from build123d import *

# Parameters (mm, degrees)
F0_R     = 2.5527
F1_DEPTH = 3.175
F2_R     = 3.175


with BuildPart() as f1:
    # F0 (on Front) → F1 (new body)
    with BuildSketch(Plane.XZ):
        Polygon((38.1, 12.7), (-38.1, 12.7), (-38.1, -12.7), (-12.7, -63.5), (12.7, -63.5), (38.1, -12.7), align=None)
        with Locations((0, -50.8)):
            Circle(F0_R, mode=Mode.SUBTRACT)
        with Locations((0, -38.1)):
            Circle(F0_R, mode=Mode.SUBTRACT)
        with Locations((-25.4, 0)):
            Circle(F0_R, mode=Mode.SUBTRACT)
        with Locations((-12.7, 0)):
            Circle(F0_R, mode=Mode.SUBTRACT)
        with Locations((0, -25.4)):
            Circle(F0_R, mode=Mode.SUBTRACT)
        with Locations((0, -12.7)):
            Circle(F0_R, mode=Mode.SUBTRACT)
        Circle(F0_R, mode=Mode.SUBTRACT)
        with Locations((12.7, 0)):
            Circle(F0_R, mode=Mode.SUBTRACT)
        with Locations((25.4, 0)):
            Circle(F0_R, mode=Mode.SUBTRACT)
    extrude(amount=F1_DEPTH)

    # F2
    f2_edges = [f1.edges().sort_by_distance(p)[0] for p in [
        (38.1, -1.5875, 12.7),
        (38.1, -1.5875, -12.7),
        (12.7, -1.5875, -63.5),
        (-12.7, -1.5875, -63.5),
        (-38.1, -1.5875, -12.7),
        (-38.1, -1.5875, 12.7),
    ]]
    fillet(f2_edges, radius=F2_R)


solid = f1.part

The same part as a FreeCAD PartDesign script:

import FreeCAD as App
import Part
import Sketcher
Q = App.Units.Quantity


def edges_at(feature, points):
    """Names of the edges that pass closest to the given points."""
    edges = feature.Shape.Edges
    near = lambda p: min(range(len(edges)), key=lambda i: edges[i].distToShape(Part.Vertex(*p))[0])
    return sorted({f"Edge{near(p) + 1}" for p in points})

doc = App.newDocument("Part")
params = doc.addObject("Spreadsheet::Sheet", "Params")
for row, (alias, value) in enumerate([
    ("sketch1_width", "3 in"),
    ("sketch1_width2", "1 in"),
    ("sketch1_diameter", "0.201 in"),
    ("pad1_length", "0.125 in"),
    ("fillet_radius", "0.125 in"),
], start=1):
    params.set(f"A{row}", alias)
    params.set(f"B{row}", "=" + value)
    params.setAlias(f"B{row}", alias)

body = doc.addObject("PartDesign::Body", "Body")

# Sketch on XZ plane
sketch1 = body.newObject("Sketcher::SketchObject", "Sketch")
sketch1.AttachmentSupport = (doc.getObject("XZ_Plane"), [""])
sketch1.MapMode = "FlatFace"
sketch1.addGeometry([
    Part.LineSegment(App.Vector(38.1, 12.7, 0), App.Vector(-38.1, 12.7, 0)),  # 0
    Part.LineSegment(App.Vector(-38.1, 12.7, 0), App.Vector(-38.1, -12.7, 0)),  # 1
    Part.LineSegment(App.Vector(-38.1, -12.7, 0), App.Vector(-12.7, -63.5, 0)),  # 2
    Part.LineSegment(App.Vector(-12.7, -63.5, 0), App.Vector(12.7, -63.5, 0)),  # 3
    Part.LineSegment(App.Vector(12.7, -63.5, 0), App.Vector(38.1, -12.7, 0)),  # 4
    Part.LineSegment(App.Vector(38.1, -12.7, 0), App.Vector(38.1, 12.7, 0)),  # 5
    Part.Circle(App.Vector(0, -50.8, 0), App.Vector(0, 0, 1), 2.6),  # 6
    Part.Circle(App.Vector(0, -38.1, 0), App.Vector(0, 0, 1), 2.6),  # 7
    Part.Circle(App.Vector(-25.4, 0, 0), App.Vector(0, 0, 1), 2.6),  # 8
    Part.Circle(App.Vector(-12.7, 0, 0), App.Vector(0, 0, 1), 2.6),  # 9
    Part.Circle(App.Vector(0, -25.4, 0), App.Vector(0, 0, 1), 2.6),  # 10
    Part.Circle(App.Vector(0, -12.7, 0), App.Vector(0, 0, 1), 2.6),  # 11
    Part.Circle(App.Vector(0, 0, 0), App.Vector(0, 0, 1), 2.6),  # 12
    Part.Circle(App.Vector(12.7, 0, 0), App.Vector(0, 0, 1), 2.6),  # 13
    Part.Circle(App.Vector(25.4, 0, 0), App.Vector(0, 0, 1), 2.6),  # 14
], False)
sketch1.addConstraint([
    Sketcher.Constraint("Coincident", 0, 2, 1, 1),
    Sketcher.Constraint("Coincident", 1, 2, 2, 1),
    Sketcher.Constraint("Coincident", 2, 2, 3, 1),
    Sketcher.Constraint("Coincident", 3, 2, 4, 1),
    Sketcher.Constraint("Coincident", 4, 2, 5, 1),
    Sketcher.Constraint("Coincident", 5, 2, 0, 1),
    Sketcher.Constraint("Horizontal", 0),
    Sketcher.Constraint("Vertical", 1),
    Sketcher.Constraint("Horizontal", 3),
    Sketcher.Constraint("Vertical", 5),
    Sketcher.Constraint("Coincident", 12, 3, -1, 1),
    Sketcher.Constraint("Equal", 6, 7),
    Sketcher.Constraint("Equal", 7, 8),
    Sketcher.Constraint("Equal", 8, 9),
    Sketcher.Constraint("Equal", 9, 10),
    Sketcher.Constraint("Equal", 10, 11),
    Sketcher.Constraint("Equal", 11, 12),
    Sketcher.Constraint("Equal", 12, 13),
    Sketcher.Constraint("Equal", 13, 14),
    Sketcher.Constraint("Symmetric", 9, 3, 13, 3, -1, 1),
    Sketcher.Constraint("Symmetric", 8, 3, 14, 3, -1, 1),
    Sketcher.Constraint("Symmetric", 0, 2, 4, 2, -1, 1),
    Sketcher.Constraint("PointOnObject", 6, 3, -2),
    Sketcher.Constraint("PointOnObject", 7, 3, -2),
    Sketcher.Constraint("PointOnObject", 8, 3, -1),
    Sketcher.Constraint("PointOnObject", 9, 3, -1),
    Sketcher.Constraint("PointOnObject", 10, 3, -2),
    Sketcher.Constraint("PointOnObject", 11, 3, -2),
    Sketcher.Constraint("Horizontal", 11, 3, 1, 2),
    Sketcher.Constraint("Horizontal", 1, 2, 4, 2),
    Sketcher.Constraint("Vertical", 9, 3, 2, 2),
    Sketcher.Constraint("Vertical", 13, 3, 3, 2),
    Sketcher.Constraint("Equal", 3, 1),
    Sketcher.Constraint("DistanceX", 0, 2, 0, 1, Q("3 in")),
    Sketcher.Constraint("DistanceX", 3, 1, 3, 2, Q("1 in")),
    Sketcher.Constraint("Diameter", 6, Q("0.201 in")),
    Sketcher.Constraint("DistanceY", 6, 3, -1, 1, Q("2 in")),
    Sketcher.Constraint("DistanceX", 8, 3, -1, 1, Q("1 in")),
    Sketcher.Constraint("DistanceY", 10, 3, -1, 1, Q("1 in")),
    Sketcher.Constraint("DistanceY", 7, 3, 11, 3, Q("1 in")),
    Sketcher.Constraint("DistanceY", 2, 2, 7, 3, Q("1 in")),
])
sketch1.setExpression("Constraints[33]", "Params.sketch1_width")
sketch1.setExpression("Constraints[34]", "Params.sketch1_width2")
sketch1.setExpression("Constraints[35]", "Params.sketch1_diameter")
pad1 = body.newObject("PartDesign::Pad", "Pad")
pad1.Profile = sketch1
pad1.setExpression("Length", "Params.pad1_length")
doc.recompute()

fillet = body.newObject("PartDesign::Fillet", "Fillet")
fillet.Base = (pad1, edges_at(pad1, [
    (38.1, -1.587, 12.7),
    (38.1, -1.587, -12.7),
    (12.7, -1.587, -63.5),
    (-12.7, -1.587, -63.5),
    (-38.1, -1.587, -12.7),
    (-38.1, -1.587, 12.7),
]))
fillet.setExpression("Radius", "Params.fillet_radius")

doc.recompute()
